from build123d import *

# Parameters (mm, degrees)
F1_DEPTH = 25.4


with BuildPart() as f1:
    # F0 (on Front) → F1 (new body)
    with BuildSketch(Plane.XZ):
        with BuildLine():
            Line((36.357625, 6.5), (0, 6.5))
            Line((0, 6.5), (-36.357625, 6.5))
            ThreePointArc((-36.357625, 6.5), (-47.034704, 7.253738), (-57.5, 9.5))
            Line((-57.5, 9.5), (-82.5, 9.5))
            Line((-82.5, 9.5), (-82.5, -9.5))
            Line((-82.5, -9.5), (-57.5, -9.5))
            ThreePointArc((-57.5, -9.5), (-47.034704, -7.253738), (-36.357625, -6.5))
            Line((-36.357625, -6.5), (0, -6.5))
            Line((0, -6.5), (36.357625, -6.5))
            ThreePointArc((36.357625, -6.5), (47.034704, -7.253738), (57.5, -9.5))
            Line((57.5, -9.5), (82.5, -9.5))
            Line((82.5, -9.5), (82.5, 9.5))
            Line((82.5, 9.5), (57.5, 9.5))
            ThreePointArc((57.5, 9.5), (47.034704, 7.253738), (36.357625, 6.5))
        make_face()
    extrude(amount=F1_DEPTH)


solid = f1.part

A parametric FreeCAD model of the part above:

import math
import FreeCAD as App
import Part
import Sketcher
from FreeCAD import Vector
Q = App.Units.Quantity

doc = App.newDocument("Part")
params = doc.addObject("Spreadsheet::Sheet", "Params")
for row, (alias, value) in enumerate([
    ("sketch1_width", "25 mm"),
    ("sketch1_height", "19 mm"),
    ("pad1_length", "25.4 mm"),
], start=1):
    params.set(f"A{row}", alias)
    params.set(f"B{row}", "=" + value)
    params.setAlias(f"B{row}", alias)

body = doc.addObject("PartDesign::Body", "Body")

# Sketch on XZ plane
sketch1 = doc.addObject("Sketcher::SketchObject", "Sketch")
body.addObject(sketch1)
sketch1.AttachmentSupport = (doc.XZ_Plane, [""])
sketch1.MapMode = "FlatFace"
sketch1.addGeometry(Part.LineSegment(Vector(36.357625, 6.5, 0), Vector(-36.357625, 6.5, 0)), False)
sketch1.addGeometry(Part.ArcOfCircle(Part.Circle(Vector(-36.357621, 82.500032, 0), Vector(0, 0, 1), 76.000032), math.radians(-106.152153), math.radians(-90.000003)), False)
sketch1.addGeometry(Part.LineSegment(Vector(-57.5, 9.5, 0), Vector(-82.5, 9.5, 0)), False)
sketch1.addGeometry(Part.LineSegment(Vector(-82.5, 9.5, 0), Vector(-82.5, -9.5, 0)), False)
sketch1.addGeometry(Part.LineSegment(Vector(-82.5, -9.5, 0), Vector(-57.5, -9.5, 0)), False)
sketch1.addGeometry(Part.ArcOfCircle(Part.Circle(Vector(-36.357621, -82.500032, 0), Vector(0, 0, 1), 76.000032), math.radians(90.000003), math.radians(106.152153)), False)
sketch1.addGeometry(Part.LineSegment(Vector(-36.357625, -6.5, 0), Vector(36.357625, -6.5, 0)), False)
sketch1.addGeometry(Part.ArcOfCircle(Part.Circle(Vector(36.357621, -82.500032, 0), Vector(0, 0, 1), 76.000032), math.radians(73.847847), math.radians(89.999997)), False)
sketch1.addGeometry(Part.LineSegment(Vector(57.5, -9.5, 0), Vector(82.5, -9.5, 0)), False)
sketch1.addGeometry(Part.LineSegment(Vector(82.5, -9.5, 0), Vector(82.5, 9.5, 0)), False)
sketch1.addGeometry(Part.LineSegment(Vector(82.5, 9.5, 0), Vector(57.5, 9.5, 0)), False)
sketch1.addGeometry(Part.ArcOfCircle(Part.Circle(Vector(36.357621, 82.500032, 0), Vector(0, 0, 1), 76.000032), math.radians(-89.999997), math.radians(-73.847847)), False)
sketch1.addConstraint(Sketcher.Constraint("Tangent", 0, 2, 1, 2))
sketch1.addConstraint(Sketcher.Constraint("Coincident", 1, 1, 2, 1))
sketch1.addConstraint(Sketcher.Constraint("Coincident", 2, 2, 3, 1))
sketch1.addConstraint(Sketcher.Constraint("Coincident", 3, 2, 4, 1))
sketch1.addConstraint(Sketcher.Constraint("Coincident", 4, 2, 5, 2))
sketch1.addConstraint(Sketcher.Constraint("Tangent", 5, 1, 6, 1))
sketch1.addConstraint(Sketcher.Constraint("Tangent", 6, 2, 7, 2))
sketch1.addConstraint(Sketcher.Constraint("Coincident", 7, 1, 8, 1))
sketch1.addConstraint(Sketcher.Constraint("Coincident", 8, 2, 9, 1))
sketch1.addConstraint(Sketcher.Constraint("Coincident", 9, 2, 10, 1))
sketch1.addConstraint(Sketcher.Constraint("Coincident", 10, 2, 11, 2))
sketch1.addConstraint(Sketcher.Constraint("Tangent", 11, 1, 0, 1))
sketch1.addConstraint(Sketcher.Constraint("Horizontal", 0))
sketch1.addConstraint(Sketcher.Constraint("Horizontal", 2))
sketch1.addConstraint(Sketcher.Constraint("Vertical", 3))
sketch1.addConstraint(Sketcher.Constraint("Horizontal", 4))
sketch1.addConstraint(Sketcher.Constraint("Horizontal", 6))
sketch1.addConstraint(Sketcher.Constraint("Horizontal", 8))
sketch1.addConstraint(Sketcher.Constraint("Vertical", 9))
sketch1.addConstraint(Sketcher.Constraint("Horizontal", 10))
sketch1.addConstraint(Sketcher.Constraint("Equal", 1, 5))
sketch1.addConstraint(Sketcher.Constraint("Equal", 5, 7))
sketch1.addConstraint(Sketcher.Constraint("Equal", 7, 11))
sketch1.addConstraint(Sketcher.Constraint("Symmetric", 1, 3, 7, 3, -1, 1))
sketch1.addConstraint(Sketcher.Constraint("Symmetric", 2, 2, 8, 2, -1, 1))
sketch1.addConstraint(Sketcher.Constraint("Symmetric", 4, 2, 10, 2, -1, 1))
sketch1.addConstraint(Sketcher.Constraint("Symmetric", 4, 2, 7, 1, -2))
sketch1.addConstraint(Sketcher.Constraint("DistanceX", 2, 2, 2, 1, Q("25 mm")))
sketch1.addConstraint(Sketcher.Constraint("DistanceY", 3, 2, 3, 1, Q("19 mm")))
sketch1.addConstraint(Sketcher.Constraint("DistanceY", 0, 2, 1, 1, Q("3 mm")))
sketch1.addConstraint(Sketcher.Constraint("DistanceX", 1, 1, -1, 1, Q("57.5 mm")))
sketch1.addConstraint(Sketcher.Constraint("Radius", 1, Q("76.000032 mm")))
sketch1.setExpression("Constraints[27]", "Params.sketch1_width")
sketch1.setExpression("Constraints[28]", "Params.sketch1_height")
pad1 = doc.addObject("PartDesign::Pad", "Pad")
body.addObject(pad1)
pad1.Profile = sketch1
pad1.setExpression("Length", "Params.pad1_length")

doc.recompute()
